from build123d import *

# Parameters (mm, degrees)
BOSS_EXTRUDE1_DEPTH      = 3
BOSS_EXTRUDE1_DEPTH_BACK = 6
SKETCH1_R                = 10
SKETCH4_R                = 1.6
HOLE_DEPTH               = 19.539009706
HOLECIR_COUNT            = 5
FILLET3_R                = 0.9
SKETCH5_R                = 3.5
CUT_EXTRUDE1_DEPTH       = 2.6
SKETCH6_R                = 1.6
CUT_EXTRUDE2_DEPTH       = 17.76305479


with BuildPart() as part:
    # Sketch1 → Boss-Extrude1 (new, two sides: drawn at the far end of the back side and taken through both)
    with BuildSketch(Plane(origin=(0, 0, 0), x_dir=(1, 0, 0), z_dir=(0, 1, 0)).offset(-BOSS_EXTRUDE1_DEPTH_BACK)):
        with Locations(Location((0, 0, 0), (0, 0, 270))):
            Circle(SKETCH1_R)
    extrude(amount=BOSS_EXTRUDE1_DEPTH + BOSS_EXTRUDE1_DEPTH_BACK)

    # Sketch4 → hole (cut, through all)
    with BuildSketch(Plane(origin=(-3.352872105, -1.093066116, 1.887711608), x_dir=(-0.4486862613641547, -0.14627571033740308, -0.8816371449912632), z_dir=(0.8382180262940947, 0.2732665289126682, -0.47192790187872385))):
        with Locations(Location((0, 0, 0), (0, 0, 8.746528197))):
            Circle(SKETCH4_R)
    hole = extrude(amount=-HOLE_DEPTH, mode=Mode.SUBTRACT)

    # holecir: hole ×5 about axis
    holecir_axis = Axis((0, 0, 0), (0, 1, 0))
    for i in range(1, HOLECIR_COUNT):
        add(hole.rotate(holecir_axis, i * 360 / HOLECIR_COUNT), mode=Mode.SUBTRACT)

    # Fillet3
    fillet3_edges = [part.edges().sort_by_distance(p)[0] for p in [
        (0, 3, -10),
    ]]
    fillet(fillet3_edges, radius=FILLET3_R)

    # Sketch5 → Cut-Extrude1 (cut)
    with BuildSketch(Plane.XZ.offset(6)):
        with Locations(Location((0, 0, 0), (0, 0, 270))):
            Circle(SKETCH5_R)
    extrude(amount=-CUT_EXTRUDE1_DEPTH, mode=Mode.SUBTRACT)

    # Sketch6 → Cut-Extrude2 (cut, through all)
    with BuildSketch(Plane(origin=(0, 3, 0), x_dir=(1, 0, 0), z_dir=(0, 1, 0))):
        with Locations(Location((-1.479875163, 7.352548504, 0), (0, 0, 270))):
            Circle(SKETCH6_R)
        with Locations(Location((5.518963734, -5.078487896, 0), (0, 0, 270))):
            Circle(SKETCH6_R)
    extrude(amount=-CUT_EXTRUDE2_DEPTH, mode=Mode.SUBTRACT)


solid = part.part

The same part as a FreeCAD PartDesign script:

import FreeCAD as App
import Part
import Sketcher


def edges_at(feature, points):
    """Names of the edges that pass closest to the given points."""
    edges = feature.Shape.Edges
    near = lambda p: min(range(len(edges)), key=lambda i: edges[i].distToShape(Part.Vertex(*p))[0])
    return sorted({f"Edge{near(p) + 1}" for p in points})

doc = App.newDocument("Part")
body = doc.addObject("PartDesign::Body", "Body")

# Sketch on XZ plane
sketch1 = doc.addObject("Sketcher::SketchObject", "Sketch")
body.addObject(sketch1)
sketch1.AttachmentSupport = (doc.XZ_Plane, [""])
sketch1.MapMode = "FlatFace"
sketch1.addGeometry(Part.Circle(App.Vector(0, 0, 0), App.Vector(0, 0, 1), 10), False)
sketch1.addConstraint([
    Sketcher.Constraint("Coincident", 0, 3, -1, 1),
    Sketcher.Constraint("Diameter", 0, 20.0),
])
pad1 = doc.addObject("PartDesign::Pad", "Pad")
body.addObject(pad1)
pad1.Profile = sketch1
pad1.Type = "TwoLengths"
pad1.Length = 3
pad1.Length2 = 6
pad1.Reversed = True

# Sketch on an angled plane
sketch2 = doc.addObject("Sketcher::SketchObject", "Sketch001")
body.addObject(sketch2)
sketch2.Placement = App.Placement(App.Vector(-3.352872, -1.093066, 1.887712), App.Rotation(App.Vector(-0.448686261, -0.14627571, -0.881637145), App.Vector(-0.309953511, 0.950751713, 0), App.Vector(0.838218026, 0.273266529, -0.471927902), "ZXY"))
sketch2.addGeometry(Part.Circle(App.Vector(0, 0, 0), App.Vector(0, 0, 1), 1.6), False)
sketch2.addConstraint([
    Sketcher.Constraint("Coincident", 0, 3, -1, 1),
    Sketcher.Constraint("Diameter", 0, 3.2),
])
pocket1 = doc.addObject("PartDesign::Pocket", "Pocket")
body.addObject(pocket1)
pocket1.Profile = sketch2
pocket1.Type = "ThroughAll"
doc.recompute()

polarpattern = doc.addObject("PartDesign::PolarPattern", "PolarPattern")
body.addObject(polarpattern)
polarpattern.Originals = [pocket1]
polarpattern.Axis = (doc.Y_Axis, [""])
polarpattern.Angle = 360
polarpattern.Occurrences = 5
body.Tip = polarpattern
doc.recompute()

fillet = doc.addObject("PartDesign::Fillet", "Fillet")
body.addObject(fillet)
fillet.Base = (polarpattern, edges_at(polarpattern, [(0, 3, -10)]))
fillet.Radius = 0.9

# Sketch on XZ plane
sketch3 = doc.addObject("Sketcher::SketchObject", "Sketch002")
body.addObject(sketch3)
sketch3.AttachmentSupport = (doc.XZ_Plane, [""])
sketch3.MapMode = "FlatFace"
sketch3.AttachmentOffset = App.Placement(App.Vector(0, 0, 6), App.Rotation())
sketch3.addGeometry(Part.Circle(App.Vector(0, 0, 0), App.Vector(0, 0, 1), 3.5), False)
sketch3.addConstraint([
    Sketcher.Constraint("Coincident", 0, 3, -1, 1),
    Sketcher.Constraint("Diameter", 0, 7.0),
])
pocket2 = doc.addObject("PartDesign::Pocket", "Pocket001")
body.addObject(pocket2)
pocket2.Profile = sketch3
pocket2.Length = 2.6

# Sketch on XZ plane
sketch4 = doc.addObject("Sketcher::SketchObject", "Sketch003")
body.addObject(sketch4)
sketch4.AttachmentSupport = (doc.XZ_Plane, [""])
sketch4.MapMode = "FlatFace"
sketch4.AttachmentOffset = App.Placement(App.Vector(0, 0, -3), App.Rotation())
sketch4.addGeometry([
    Part.Circle(App.Vector(-1.5, -7.4, 0), App.Vector(0, 0, 1), 1.6),
    Part.Circle(App.Vector(5.5, 5.1, 0), App.Vector(0, 0, 1), 1.6),
], False)
sketch4.addConstraint([
    Sketcher.Constraint("Equal", 0, 1),
    Sketcher.Constraint("Diameter", 0, 3.2),
    Sketcher.Constraint("DistanceY", 0, 3, -1, 1, 7.352549),
    Sketcher.Constraint("DistanceX", 0, 3, 1, 3, 6.998839),
    Sketcher.Constraint("DistanceX", 0, 3, -1, 1, 1.479875),
    Sketcher.Constraint("DistanceY", -1, 1, 1, 3, 5.078488),
])
pocket3 = doc.addObject("PartDesign::Pocket", "Pocket002")
body.addObject(pocket3)
pocket3.Profile = sketch4
pocket3.Type = "ThroughAll"
pocket3.Reversed = True

doc.recompute()
